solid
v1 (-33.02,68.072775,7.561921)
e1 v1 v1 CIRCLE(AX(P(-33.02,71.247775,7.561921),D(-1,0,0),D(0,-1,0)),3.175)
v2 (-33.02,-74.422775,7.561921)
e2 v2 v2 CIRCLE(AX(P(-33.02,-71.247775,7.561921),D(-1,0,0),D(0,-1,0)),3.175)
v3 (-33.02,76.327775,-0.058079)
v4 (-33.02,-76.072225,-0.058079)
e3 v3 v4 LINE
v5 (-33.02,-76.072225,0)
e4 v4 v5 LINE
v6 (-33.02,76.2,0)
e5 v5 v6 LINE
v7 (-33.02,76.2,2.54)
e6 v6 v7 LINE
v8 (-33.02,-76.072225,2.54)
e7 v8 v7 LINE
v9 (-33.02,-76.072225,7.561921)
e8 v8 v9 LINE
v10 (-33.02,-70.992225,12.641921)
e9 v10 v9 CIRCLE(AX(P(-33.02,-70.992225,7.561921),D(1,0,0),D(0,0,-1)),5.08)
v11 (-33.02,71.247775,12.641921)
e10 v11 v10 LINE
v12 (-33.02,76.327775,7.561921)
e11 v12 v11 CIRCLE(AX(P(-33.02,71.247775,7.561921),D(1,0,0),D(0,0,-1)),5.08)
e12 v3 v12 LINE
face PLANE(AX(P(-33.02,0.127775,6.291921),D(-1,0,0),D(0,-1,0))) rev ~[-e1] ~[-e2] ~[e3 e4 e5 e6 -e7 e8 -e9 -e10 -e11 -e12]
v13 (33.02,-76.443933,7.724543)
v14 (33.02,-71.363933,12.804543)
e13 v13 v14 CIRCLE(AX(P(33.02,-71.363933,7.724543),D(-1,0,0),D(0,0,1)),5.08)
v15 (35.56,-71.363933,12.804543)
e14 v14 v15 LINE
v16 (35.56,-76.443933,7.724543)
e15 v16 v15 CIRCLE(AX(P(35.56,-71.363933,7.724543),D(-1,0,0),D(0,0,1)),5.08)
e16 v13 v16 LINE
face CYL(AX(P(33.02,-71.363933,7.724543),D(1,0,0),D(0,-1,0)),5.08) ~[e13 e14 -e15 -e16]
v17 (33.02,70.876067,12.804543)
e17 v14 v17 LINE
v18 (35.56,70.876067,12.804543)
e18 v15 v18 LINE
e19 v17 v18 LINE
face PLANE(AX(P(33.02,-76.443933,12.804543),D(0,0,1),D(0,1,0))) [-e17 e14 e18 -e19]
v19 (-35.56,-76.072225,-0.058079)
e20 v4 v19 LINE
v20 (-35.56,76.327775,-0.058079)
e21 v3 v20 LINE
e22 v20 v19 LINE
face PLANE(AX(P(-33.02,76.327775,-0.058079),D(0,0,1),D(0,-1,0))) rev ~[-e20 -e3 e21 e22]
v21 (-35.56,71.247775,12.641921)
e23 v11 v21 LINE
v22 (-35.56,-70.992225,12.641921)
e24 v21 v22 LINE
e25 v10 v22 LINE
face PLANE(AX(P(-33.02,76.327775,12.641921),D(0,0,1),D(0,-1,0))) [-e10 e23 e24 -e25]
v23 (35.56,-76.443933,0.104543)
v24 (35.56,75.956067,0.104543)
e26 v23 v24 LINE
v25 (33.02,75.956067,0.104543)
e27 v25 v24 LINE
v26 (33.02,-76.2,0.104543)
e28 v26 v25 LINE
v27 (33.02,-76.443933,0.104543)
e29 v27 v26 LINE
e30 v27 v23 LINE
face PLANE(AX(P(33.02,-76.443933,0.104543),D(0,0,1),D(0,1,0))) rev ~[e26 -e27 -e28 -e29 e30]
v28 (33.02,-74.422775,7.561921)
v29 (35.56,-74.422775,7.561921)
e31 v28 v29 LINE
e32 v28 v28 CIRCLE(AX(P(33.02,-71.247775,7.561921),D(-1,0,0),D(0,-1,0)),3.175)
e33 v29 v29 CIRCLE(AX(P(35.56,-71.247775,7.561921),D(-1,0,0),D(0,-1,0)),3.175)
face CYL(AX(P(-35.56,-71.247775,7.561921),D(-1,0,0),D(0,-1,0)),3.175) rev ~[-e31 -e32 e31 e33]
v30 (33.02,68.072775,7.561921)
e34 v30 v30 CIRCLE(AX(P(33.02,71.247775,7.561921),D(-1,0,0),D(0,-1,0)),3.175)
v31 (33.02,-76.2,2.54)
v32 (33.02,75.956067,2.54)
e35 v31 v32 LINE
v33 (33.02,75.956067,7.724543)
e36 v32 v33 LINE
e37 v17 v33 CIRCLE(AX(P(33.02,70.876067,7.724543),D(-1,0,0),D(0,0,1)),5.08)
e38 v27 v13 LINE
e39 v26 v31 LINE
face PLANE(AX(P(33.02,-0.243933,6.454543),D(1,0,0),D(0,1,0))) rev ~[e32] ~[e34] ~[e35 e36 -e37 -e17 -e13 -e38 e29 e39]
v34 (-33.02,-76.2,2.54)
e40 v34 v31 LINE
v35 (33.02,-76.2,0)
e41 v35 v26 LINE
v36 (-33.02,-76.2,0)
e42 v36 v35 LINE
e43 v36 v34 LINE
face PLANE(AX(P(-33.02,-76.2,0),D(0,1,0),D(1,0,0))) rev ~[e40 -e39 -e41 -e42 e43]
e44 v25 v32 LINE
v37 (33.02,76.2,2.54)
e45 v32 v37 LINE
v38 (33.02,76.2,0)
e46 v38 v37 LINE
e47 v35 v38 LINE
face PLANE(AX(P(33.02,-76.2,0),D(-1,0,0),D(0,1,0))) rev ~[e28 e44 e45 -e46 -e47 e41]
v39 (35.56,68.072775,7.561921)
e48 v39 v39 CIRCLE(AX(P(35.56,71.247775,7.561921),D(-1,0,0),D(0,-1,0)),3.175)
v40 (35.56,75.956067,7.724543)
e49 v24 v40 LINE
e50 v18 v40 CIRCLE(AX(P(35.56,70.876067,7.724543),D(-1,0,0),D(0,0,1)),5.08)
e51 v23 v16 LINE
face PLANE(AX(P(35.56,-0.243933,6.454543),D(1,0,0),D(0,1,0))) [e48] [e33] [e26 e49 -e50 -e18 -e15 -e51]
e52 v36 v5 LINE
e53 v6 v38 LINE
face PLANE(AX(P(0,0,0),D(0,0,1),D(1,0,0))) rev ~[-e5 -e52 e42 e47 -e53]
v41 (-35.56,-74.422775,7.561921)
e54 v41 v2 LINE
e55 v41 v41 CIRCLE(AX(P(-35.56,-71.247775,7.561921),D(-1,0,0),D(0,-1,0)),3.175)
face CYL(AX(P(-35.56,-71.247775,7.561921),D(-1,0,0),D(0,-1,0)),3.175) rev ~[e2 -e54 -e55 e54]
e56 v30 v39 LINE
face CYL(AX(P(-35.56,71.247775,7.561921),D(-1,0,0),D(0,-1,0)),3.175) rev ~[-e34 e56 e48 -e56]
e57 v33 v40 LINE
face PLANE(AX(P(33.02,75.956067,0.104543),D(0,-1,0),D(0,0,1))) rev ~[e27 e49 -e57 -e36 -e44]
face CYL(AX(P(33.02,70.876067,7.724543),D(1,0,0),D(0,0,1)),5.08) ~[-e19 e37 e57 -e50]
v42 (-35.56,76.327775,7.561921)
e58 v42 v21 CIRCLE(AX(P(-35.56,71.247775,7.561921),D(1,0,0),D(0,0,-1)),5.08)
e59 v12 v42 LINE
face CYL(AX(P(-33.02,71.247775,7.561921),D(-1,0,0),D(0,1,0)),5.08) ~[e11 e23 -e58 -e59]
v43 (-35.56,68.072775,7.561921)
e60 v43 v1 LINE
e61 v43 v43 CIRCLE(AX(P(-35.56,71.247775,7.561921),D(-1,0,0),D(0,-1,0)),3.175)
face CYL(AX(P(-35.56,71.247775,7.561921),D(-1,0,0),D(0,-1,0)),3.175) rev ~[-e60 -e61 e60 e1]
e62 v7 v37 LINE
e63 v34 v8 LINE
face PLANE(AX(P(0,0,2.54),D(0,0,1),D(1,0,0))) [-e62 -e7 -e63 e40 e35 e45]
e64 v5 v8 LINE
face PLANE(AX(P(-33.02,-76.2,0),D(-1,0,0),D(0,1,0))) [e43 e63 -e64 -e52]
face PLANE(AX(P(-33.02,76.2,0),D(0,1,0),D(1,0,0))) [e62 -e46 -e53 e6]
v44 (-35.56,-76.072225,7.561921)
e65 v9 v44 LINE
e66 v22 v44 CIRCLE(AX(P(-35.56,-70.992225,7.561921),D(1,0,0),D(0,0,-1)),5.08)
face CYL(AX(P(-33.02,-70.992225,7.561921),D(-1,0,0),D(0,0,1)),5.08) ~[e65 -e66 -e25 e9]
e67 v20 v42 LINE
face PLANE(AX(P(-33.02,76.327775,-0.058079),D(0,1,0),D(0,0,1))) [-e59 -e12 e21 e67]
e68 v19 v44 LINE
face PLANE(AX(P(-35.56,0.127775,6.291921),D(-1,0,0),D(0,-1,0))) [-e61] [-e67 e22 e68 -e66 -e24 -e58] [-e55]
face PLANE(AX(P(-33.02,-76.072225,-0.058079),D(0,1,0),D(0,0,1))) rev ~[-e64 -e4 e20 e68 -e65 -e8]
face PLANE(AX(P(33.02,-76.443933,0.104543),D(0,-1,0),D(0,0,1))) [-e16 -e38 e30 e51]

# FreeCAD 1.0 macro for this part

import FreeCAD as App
import Part
import Sketcher

V = App.Vector
Q = App.Units.Quantity


def edges_at(feature, points):
    """Names of the edges that pass closest to the given points."""
    edges = feature.Shape.Edges
    near = lambda p: min(range(len(edges)), key=lambda i: edges[i].distToShape(Part.Vertex(*p))[0])
    return sorted({f"Edge{near(p) + 1}" for p in points})


def add_polygon(sketch, points):
    """Adds a closed chain of lines whose ends are joined by coincident constraints."""
    first, n = sketch.GeometryCount, len(points)
    for a, b in zip(points, points[1:] + points[:1]):
        sketch.addGeometry(Part.LineSegment(App.Vector(*a, 0), App.Vector(*b, 0)), False)
    for i in range(n):
        sketch.addConstraint(Sketcher.Constraint("Coincident", first + i, 2, first + (i + 1) % n, 1))

doc = App.newDocument("Part")
body = doc.addObject("PartDesign::Body", "Body")

sketch1 = body.newObject("Sketcher::SketchObject", "Sketch")
sketch1.AttachmentSupport = (doc.getObject("XY_Plane"), [""])
sketch1.MapMode = "FlatFace"
add_polygon(sketch1, [(-33, 76), (-33, -76), (33, -76), (33, 76)])
sketch1.addConstraint([
    Sketcher.Constraint("Vertical", 0),
    Sketcher.Constraint("Horizontal", 1),
    Sketcher.Constraint("Vertical", 2),
    Sketcher.Constraint("Horizontal", 3),
    Sketcher.Constraint("Symmetric", 0, 2, 2, 2, -1, 1),
    Sketcher.Constraint("DistanceY", 0, 2, 0, 1, Q("6 in")),
    Sketcher.Constraint("DistanceX", 1, 1, 1, 2, Q("2.6 in")),
])
pad1 = body.newObject("PartDesign::Pad", "Pad")
pad1.Profile = sketch1
pad1.Length = Q("0.1 in")

sketch2 = body.newObject("Sketcher::SketchObject", "Sketch001")
sketch2.AttachmentSupport = (doc.getObject("YZ_Plane"), [""])
sketch2.MapMode = "FlatFace"
sketch2.AttachmentOffset = App.Placement(V(0, 0, 1.3 * 25.4), App.Rotation())
add_polygon(sketch2, [(-76, 13), (-76, 0), (76, 0), (76, 13)])
sketch2.addConstraint([
    Sketcher.Constraint("Vertical", 0),
    Sketcher.Constraint("Horizontal", 1),
    Sketcher.Constraint("Vertical", 2),
    Sketcher.Constraint("Horizontal", 3),
    Sketcher.Constraint("DistanceX", 1, 1, 1, 2, Q("6 in")),
    Sketcher.Constraint("DistanceY", 0, 2, 0, 1, Q("0.5 in")),
    Sketcher.Constraint("DistanceX", 0, 2, -1, 1, 76.443933),
    Sketcher.Constraint("DistanceY", -1, 1, 0, 2, 0.104543),
])
pad2 = body.newObject("PartDesign::Pad", "Pad001")
pad2.Profile = sketch2
pad2.Length = Q("0.1 in")

sketch3 = body.newObject("Sketcher::SketchObject", "Sketch002")
sketch3.AttachmentSupport = (doc.getObject("YZ_Plane"), [""])
sketch3.MapMode = "FlatFace"
sketch3.AttachmentOffset = App.Placement(V(0, 0, -1.3 * 25.4), App.Rotation())
add_polygon(sketch3, [(76, 13), (76, 0), (-76, 0), (-76, 13)])
sketch3.addConstraint([
    Sketcher.Constraint("Vertical", 0),
    Sketcher.Constraint("Horizontal", 1),
    Sketcher.Constraint("Vertical", 2),
    Sketcher.Constraint("Horizontal", 3),
    Sketcher.Constraint("DistanceX", 1, 2, 1, 1, Q("6 in")),
    Sketcher.Constraint("DistanceY", 0, 2, 0, 1, Q("0.5 in")),
    Sketcher.Constraint("DistanceY", 0, 2, -1, 1, 0.058079),
    Sketcher.Constraint("DistanceX", -1, 1, 0, 2, 76.327775),
])
pad3 = body.newObject("PartDesign::Pad", "Pad002")
pad3.Profile = sketch3
pad3.Length = Q("0.1 in")
pad3.Reversed = True
doc.recompute()

fillet = body.newObject("PartDesign::Fillet", "Fillet")
fillet.Base = (pad3, edges_at(pad3, [
    (34.29, -76.444, 12.805),
    (-34.29, -76.072, 12.642),
    (34.29, 75.956, 12.805),
    (-34.29, 76.328, 12.642),
]))
fillet.Radius = Q("0.2 in")

sketch4 = body.newObject("Sketcher::SketchObject", "Sketch003")
sketch4.AttachmentSupport = (doc.getObject("YZ_Plane"), [""])
sketch4.MapMode = "FlatFace"
sketch4.AttachmentOffset = App.Placement(V(0, 0, -1.4 * 25.4), App.Rotation())
sketch4.addGeometry([
    Part.Circle(V(71.2, 7.6, 0), V(0, 0, 1), 3.2),
    Part.Circle(V(-71.2, 7.6, 0), V(0, 0, 1), 3.2),
], False)
sketch4.addConstraint([
    Sketcher.Constraint("Equal", 0, 1),
    Sketcher.Constraint("Symmetric", 0, 3, 1, 3, -2),
    Sketcher.Constraint("Diameter", 0, Q("0.25 in")),
    Sketcher.Constraint("DistanceY", -1, 1, 0, 3, 7.561921),
    Sketcher.Constraint("DistanceX", 1, 3, 0, 3, 142.49555),
])
pocket1 = body.newObject("PartDesign::Pocket", "Pocket")
pocket1.Profile = sketch4
pocket1.Length = Q("3.55 in")
pocket1.Reversed = True

doc.recompute()
